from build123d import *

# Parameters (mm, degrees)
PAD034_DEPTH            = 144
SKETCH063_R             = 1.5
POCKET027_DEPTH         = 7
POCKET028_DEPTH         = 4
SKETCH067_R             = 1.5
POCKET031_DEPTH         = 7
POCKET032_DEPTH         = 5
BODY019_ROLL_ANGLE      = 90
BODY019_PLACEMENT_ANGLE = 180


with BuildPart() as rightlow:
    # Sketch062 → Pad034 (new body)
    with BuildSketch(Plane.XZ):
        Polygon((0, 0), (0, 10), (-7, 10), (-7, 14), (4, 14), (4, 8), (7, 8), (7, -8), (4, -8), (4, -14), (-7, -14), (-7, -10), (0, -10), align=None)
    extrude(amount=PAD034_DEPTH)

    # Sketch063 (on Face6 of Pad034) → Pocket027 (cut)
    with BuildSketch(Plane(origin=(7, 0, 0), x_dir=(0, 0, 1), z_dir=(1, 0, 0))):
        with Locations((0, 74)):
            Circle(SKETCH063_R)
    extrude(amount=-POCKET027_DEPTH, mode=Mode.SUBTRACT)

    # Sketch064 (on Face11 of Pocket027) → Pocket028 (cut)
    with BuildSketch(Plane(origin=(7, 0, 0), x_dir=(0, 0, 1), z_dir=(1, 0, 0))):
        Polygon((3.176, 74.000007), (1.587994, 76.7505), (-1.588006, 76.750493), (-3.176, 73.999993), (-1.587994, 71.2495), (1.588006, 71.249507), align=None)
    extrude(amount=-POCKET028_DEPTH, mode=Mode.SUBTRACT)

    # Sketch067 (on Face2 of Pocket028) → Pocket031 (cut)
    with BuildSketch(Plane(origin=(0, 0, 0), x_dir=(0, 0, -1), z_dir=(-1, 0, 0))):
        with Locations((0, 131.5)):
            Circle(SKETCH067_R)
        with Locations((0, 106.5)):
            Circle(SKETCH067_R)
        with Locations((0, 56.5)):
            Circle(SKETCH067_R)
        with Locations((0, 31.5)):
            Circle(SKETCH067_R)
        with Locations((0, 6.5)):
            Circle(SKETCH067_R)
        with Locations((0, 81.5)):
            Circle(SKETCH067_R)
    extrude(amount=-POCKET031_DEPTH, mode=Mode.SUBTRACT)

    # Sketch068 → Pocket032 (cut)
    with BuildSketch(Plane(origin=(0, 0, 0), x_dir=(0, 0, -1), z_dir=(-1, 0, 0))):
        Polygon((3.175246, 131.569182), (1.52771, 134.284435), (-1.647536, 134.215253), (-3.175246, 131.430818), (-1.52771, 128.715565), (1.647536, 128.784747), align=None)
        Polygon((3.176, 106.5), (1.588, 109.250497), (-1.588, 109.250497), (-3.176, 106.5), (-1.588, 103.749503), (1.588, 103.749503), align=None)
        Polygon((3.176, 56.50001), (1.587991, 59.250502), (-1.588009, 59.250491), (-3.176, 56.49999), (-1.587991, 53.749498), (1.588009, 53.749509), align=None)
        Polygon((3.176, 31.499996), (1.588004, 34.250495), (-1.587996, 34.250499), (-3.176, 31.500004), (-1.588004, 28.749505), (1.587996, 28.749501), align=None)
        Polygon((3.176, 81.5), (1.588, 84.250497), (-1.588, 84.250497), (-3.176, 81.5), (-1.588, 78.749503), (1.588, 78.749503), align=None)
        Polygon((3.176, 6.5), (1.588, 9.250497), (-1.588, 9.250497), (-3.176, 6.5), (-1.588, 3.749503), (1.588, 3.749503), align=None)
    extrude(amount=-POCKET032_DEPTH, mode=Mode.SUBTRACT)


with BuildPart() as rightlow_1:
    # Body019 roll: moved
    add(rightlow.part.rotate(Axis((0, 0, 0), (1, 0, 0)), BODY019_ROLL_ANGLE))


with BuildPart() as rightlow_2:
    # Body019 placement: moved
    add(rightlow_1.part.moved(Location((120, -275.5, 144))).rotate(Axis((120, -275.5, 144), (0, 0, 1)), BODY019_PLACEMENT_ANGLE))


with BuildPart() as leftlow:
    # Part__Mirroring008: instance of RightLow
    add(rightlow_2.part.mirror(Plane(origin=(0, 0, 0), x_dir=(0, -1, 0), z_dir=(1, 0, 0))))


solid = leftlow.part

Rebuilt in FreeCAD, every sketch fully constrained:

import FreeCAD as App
import Part
import Sketcher
Q = App.Units.Quantity

doc = App.newDocument("Part")
body = doc.addObject("PartDesign::Body", "Body")

sketch1 = body.newObject("Sketcher::SketchObject", "Sketch")
sketch1.AttachmentSupport = (doc.getObject("XZ_Plane"), [""])
sketch1.MapMode = "FlatFace"
sketch1.addGeometry([
    Part.LineSegment(App.Vector(0, 10, 0), App.Vector(0, -10, 0)),
    Part.LineSegment(App.Vector(0, -10, 0), App.Vector(-7, -10, 0)),
    Part.LineSegment(App.Vector(-7, -10, 0), App.Vector(-7, -14, 0)),
    Part.LineSegment(App.Vector(-7, -14, 0), App.Vector(4, -14, 0)),
    Part.LineSegment(App.Vector(4, -14, 0), App.Vector(4, -8, 0)),
    Part.LineSegment(App.Vector(4, -8, 0), App.Vector(7, -8, 0)),
    Part.LineSegment(App.Vector(7, -8, 0), App.Vector(7, 8, 0)),
    Part.LineSegment(App.Vector(7, 8, 0), App.Vector(4, 8, 0)),
    Part.LineSegment(App.Vector(4, 8, 0), App.Vector(4, 14, 0)),
    Part.LineSegment(App.Vector(4, 14, 0), App.Vector(-7, 14, 0)),
    Part.LineSegment(App.Vector(-7, 14, 0), App.Vector(-7, 10, 0)),
    Part.LineSegment(App.Vector(-7, 10, 0), App.Vector(0, 10, 0)),
], False)
sketch1.addConstraint([
    Sketcher.Constraint("Coincident", 0, 2, 1, 1),
    Sketcher.Constraint("Coincident", 1, 2, 2, 1),
    Sketcher.Constraint("Coincident", 2, 2, 3, 1),
    Sketcher.Constraint("Coincident", 3, 2, 4, 1),
    Sketcher.Constraint("Coincident", 4, 2, 5, 1),
    Sketcher.Constraint("Coincident", 5, 2, 6, 1),
    Sketcher.Constraint("Coincident", 6, 2, 7, 1),
    Sketcher.Constraint("Coincident", 7, 2, 8, 1),
    Sketcher.Constraint("Coincident", 8, 2, 9, 1),
    Sketcher.Constraint("Coincident", 9, 2, 10, 1),
    Sketcher.Constraint("Coincident", 10, 2, 11, 1),
    Sketcher.Constraint("Coincident", 11, 2, 0, 1),
    Sketcher.Constraint("Vertical", 0),
    Sketcher.Constraint("Horizontal", 1),
    Sketcher.Constraint("Vertical", 2),
    Sketcher.Constraint("Horizontal", 3),
    Sketcher.Constraint("Vertical", 4),
    Sketcher.Constraint("Horizontal", 5),
    Sketcher.Constraint("Vertical", 6),
    Sketcher.Constraint("Horizontal", 7),
    Sketcher.Constraint("Vertical", 8),
    Sketcher.Constraint("Horizontal", 9),
    Sketcher.Constraint("Vertical", 10),
    Sketcher.Constraint("Horizontal", 11),
    Sketcher.Constraint("Symmetric", 0, 2, 11, 2, -1, 1),
    Sketcher.Constraint("Symmetric", 4, 2, 7, 2, -1),
    Sketcher.Constraint("Symmetric", 2, 2, 9, 2, -1),
    Sketcher.Constraint("DistanceX", 1, 2, 1, 1, Q("7 mm")),
    Sketcher.Constraint("DistanceX", 3, 1, 3, 2, Q("11 mm")),
    Sketcher.Constraint("DistanceX", 5, 1, 5, 2, Q("3 mm")),
    Sketcher.Constraint("DistanceY", 0, 2, 0, 1, Q("20 mm")),
    Sketcher.Constraint("DistanceY", 2, 2, 2, 1, Q("4 mm")),
    Sketcher.Constraint("DistanceY", 4, 1, 4, 2, Q("6 mm")),
])
pad1 = body.newObject("PartDesign::Pad", "Pad")
pad1.Profile = sketch1
pad1.Length = 144

sketch2 = body.newObject("Sketcher::SketchObject", "Sketch001")
sketch2.AttachmentSupport = (doc.getObject("YZ_Plane"), [""])
sketch2.MapMode = "FlatFace"
sketch2.AttachmentOffset = App.Placement(App.Vector(0, 0, 7), App.Rotation())
sketch2.addGeometry(Part.Circle(App.Vector(-74, 0, 0), App.Vector(0, 0, 1), 1.5), False)
sketch2.addConstraint([
    Sketcher.Constraint("PointOnObject", 0, 3, -1),
    Sketcher.Constraint("Diameter", 0, Q("3 mm")),
    Sketcher.Constraint("DistanceX", 0, 3, -1, 1, Q("74 mm")),
])
pocket1 = body.newObject("PartDesign::Pocket", "Pocket")
pocket1.Profile = sketch2
pocket1.Length = 7

sketch3 = body.newObject("Sketcher::SketchObject", "Sketch002")
sketch3.AttachmentSupport = (doc.getObject("YZ_Plane"), [""])
sketch3.MapMode = "FlatFace"
sketch3.AttachmentOffset = App.Placement(App.Vector(0, 0, 7), App.Rotation())
sketch3.addGeometry([
    Part.LineSegment(App.Vector(-74, 3.2, 0), App.Vector(-76.8, 1.6, 0)),
    Part.LineSegment(App.Vector(-76.8, 1.6, 0), App.Vector(-76.8, -1.6, 0)),
    Part.LineSegment(App.Vector(-76.8, -1.6, 0), App.Vector(-74, -3.2, 0)),
    Part.LineSegment(App.Vector(-74, -3.2, 0), App.Vector(-71.2, -1.6, 0)),
    Part.LineSegment(App.Vector(-71.2, -1.6, 0), App.Vector(-71.2, 1.6, 0)),
    Part.LineSegment(App.Vector(-71.2, 1.6, 0), App.Vector(-74, 3.2, 0)),
], False)
sketch3.addConstraint([
    Sketcher.Constraint("Coincident", 0, 2, 1, 1),
    Sketcher.Constraint("Coincident", 1, 2, 2, 1),
    Sketcher.Constraint("Coincident", 2, 2, 3, 1),
    Sketcher.Constraint("Coincident", 3, 2, 4, 1),
    Sketcher.Constraint("Coincident", 4, 2, 5, 1),
    Sketcher.Constraint("Coincident", 5, 2, 0, 1),
    Sketcher.Constraint("Parallel", 0, 3),
    Sketcher.Constraint("Parallel", 1, 4),
    Sketcher.Constraint("Parallel", 2, 5),
    Sketcher.Constraint("Equal", 0, 1),
    Sketcher.Constraint("Equal", 1, 2),
    Sketcher.Constraint("Equal", 2, 3),
    Sketcher.Constraint("Distance", 0, Q("3.176 mm")),
    Sketcher.Constraint("DistanceY", 2, 2, -1, 1, Q("3.176 mm")),
    Sketcher.Constraint("DistanceY", -1, 1, 5, 2, Q("3.176 mm")),
    Sketcher.Constraint("DistanceX", 0, 2, 3, 2, Q("5.501 mm")),
    Sketcher.Constraint("DistanceX", 0, 2, -1, 1, Q("76.7505 mm")),
    Sketcher.Constraint("DistanceX", 1, 2, 2, 2, Q("2.7505 mm")),
])
pocket2 = body.newObject("PartDesign::Pocket", "Pocket001")
pocket2.Profile = sketch3
pocket2.Length = 4

sketch4 = body.newObject("Sketcher::SketchObject", "Sketch003")
sketch4.AttachmentSupport = (doc.getObject("YZ_Plane"), [""])
sketch4.MapMode = "FlatFace"
sketch4.addGeometry([
    Part.Circle(App.Vector(-131.5, 0, 0), App.Vector(0, 0, 1), 1.5),
    Part.Circle(App.Vector(-106.5, 0, 0), App.Vector(0, 0, 1), 1.5),
    Part.Circle(App.Vector(-56.5, 0, 0), App.Vector(0, 0, 1), 1.5),
    Part.Circle(App.Vector(-31.5, 0, 0), App.Vector(0, 0, 1), 1.5),
    Part.Circle(App.Vector(-6.5, 0, 0), App.Vector(0, 0, 1), 1.5),
    Part.Circle(App.Vector(-81.5, 0, 0), App.Vector(0, 0, 1), 1.5),
], False)
sketch4.addConstraint([
    Sketcher.Constraint("Equal", 0, 1),
    Sketcher.Constraint("Equal", 1, 2),
    Sketcher.Constraint("Equal", 2, 3),
    Sketcher.Constraint("Equal", 3, 4),
    Sketcher.Constraint("Equal", 4, 5),
    Sketcher.Constraint("PointOnObject", 0, 3, -1),
    Sketcher.Constraint("PointOnObject", 1, 3, -1),
    Sketcher.Constraint("PointOnObject", 2, 3, -1),
    Sketcher.Constraint("PointOnObject", 3, 3, -1),
    Sketcher.Constraint("PointOnObject", 4, 3, -1),
    Sketcher.Constraint("PointOnObject", 5, 3, -1),
    Sketcher.Constraint("Diameter", 0, Q("3 mm")),
    Sketcher.Constraint("DistanceX", 0, 3, 1, 3, Q("25 mm")),
    Sketcher.Constraint("DistanceX", 1, 3, 2, 3, Q("50 mm")),
    Sketcher.Constraint("DistanceX", 2, 3, 3, 3, Q("25 mm")),
    Sketcher.Constraint("DistanceX", 3, 3, 4, 3, Q("25 mm")),
    Sketcher.Constraint("DistanceX", 1, 3, 5, 3, Q("25 mm")),
    Sketcher.Constraint("DistanceX", 0, 3, -1, 1, Q("131.5 mm")),
])
pocket3 = body.newObject("PartDesign::Pocket", "Pocket002")
pocket3.Profile = sketch4
pocket3.Length = 7
pocket3.Reversed = True

sketch5 = body.newObject("Sketcher::SketchObject", "Sketch004")
sketch5.AttachmentSupport = (doc.getObject("YZ_Plane"), [""])
sketch5.MapMode = "FlatFace"
sketch5.addGeometry([
    Part.LineSegment(App.Vector(-131.6, -3.2, 0), App.Vector(-134.3, -1.5, 0)),
    Part.LineSegment(App.Vector(-134.3, -1.5, 0), App.Vector(-134.2, 1.6, 0)),
    Part.LineSegment(App.Vector(-134.2, 1.6, 0), App.Vector(-131.4, 3.2, 0)),
    Part.LineSegment(App.Vector(-131.4, 3.2, 0), App.Vector(-128.7, 1.5, 0)),
    Part.LineSegment(App.Vector(-128.7, 1.5, 0), App.Vector(-128.8, -1.6, 0)),
    Part.LineSegment(App.Vector(-128.8, -1.6, 0), App.Vector(-131.6, -3.2, 0)),
    Part.LineSegment(App.Vector(-106.5, -3.2, 0), App.Vector(-109.3, -1.6, 0)),
    Part.LineSegment(App.Vector(-109.3, -1.6, 0), App.Vector(-109.3, 1.6, 0)),
    Part.LineSegment(App.Vector(-109.3, 1.6, 0), App.Vector(-106.5, 3.2, 0)),
    Part.LineSegment(App.Vector(-106.5, 3.2, 0), App.Vector(-103.7, 1.6, 0)),
    Part.LineSegment(App.Vector(-103.7, 1.6, 0), App.Vector(-103.7, -1.6, 0)),
    Part.LineSegment(App.Vector(-103.7, -1.6, 0), App.Vector(-106.5, -3.2, 0)),
    Part.LineSegment(App.Vector(-56.5, -3.2, 0), App.Vector(-59.3, -1.6, 0)),
    Part.LineSegment(App.Vector(-59.3, -1.6, 0), App.Vector(-59.3, 1.6, 0)),
    Part.LineSegment(App.Vector(-59.3, 1.6, 0), App.Vector(-56.5, 3.2, 0)),
    Part.LineSegment(App.Vector(-56.5, 3.2, 0), App.Vector(-53.7, 1.6, 0)),
    Part.LineSegment(App.Vector(-53.7, 1.6, 0), App.Vector(-53.7, -1.6, 0)),
    Part.LineSegment(App.Vector(-53.7, -1.6, 0), App.Vector(-56.5, -3.2, 0)),
    Part.LineSegment(App.Vector(-31.5, -3.2, 0), App.Vector(-34.3, -1.6, 0)),
    Part.LineSegment(App.Vector(-34.3, -1.6, 0), App.Vector(-34.3, 1.6, 0)),
    Part.LineSegment(App.Vector(-34.3, 1.6, 0), App.Vector(-31.5, 3.2, 0)),
    Part.LineSegment(App.Vector(-31.5, 3.2, 0), App.Vector(-28.7, 1.6, 0)),
    Part.LineSegment(App.Vector(-28.7, 1.6, 0), App.Vector(-28.7, -1.6, 0)),
    Part.LineSegment(App.Vector(-28.7, -1.6, 0), App.Vector(-31.5, -3.2, 0)),
    Part.LineSegment(App.Vector(-81.5, -3.2, 0), App.Vector(-84.3, -1.6, 0)),
    Part.LineSegment(App.Vector(-84.3, -1.6, 0), App.Vector(-84.3, 1.6, 0)),
    Part.LineSegment(App.Vector(-84.3, 1.6, 0), App.Vector(-81.5, 3.2, 0)),
    Part.LineSegment(App.Vector(-81.5, 3.2, 0), App.Vector(-78.7, 1.6, 0)),
    Part.LineSegment(App.Vector(-78.7, 1.6, 0), App.Vector(-78.7, -1.6, 0)),
    Part.LineSegment(App.Vector(-78.7, -1.6, 0), App.Vector(-81.5, -3.2, 0)),
    Part.LineSegment(App.Vector(-6.5, -3.2, 0), App.Vector(-9.3, -1.6, 0)),
    Part.LineSegment(App.Vector(-9.3, -1.6, 0), App.Vector(-9.3, 1.6, 0)),
    Part.LineSegment(App.Vector(-9.3, 1.6, 0), App.Vector(-6.5, 3.2, 0)),
    Part.LineSegment(App.Vector(-6.5, 3.2, 0), App.Vector(-3.7, 1.6, 0)),
    Part.LineSegment(App.Vector(-3.7, 1.6, 0), App.Vector(-3.7, -1.6, 0)),
    Part.LineSegment(App.Vector(-3.7, -1.6, 0), App.Vector(-6.5, -3.2, 0)),
], False)
sketch5.addConstraint([
    Sketcher.Constraint("Coincident", 0, 2, 1, 1),
    Sketcher.Constraint("Coincident", 1, 2, 2, 1),
    Sketcher.Constraint("Coincident", 2, 2, 3, 1),
    Sketcher.Constraint("Coincident", 3, 2, 4, 1),
    Sketcher.Constraint("Coincident", 4, 2, 5, 1),
    Sketcher.Constraint("Coincident", 5, 2, 0, 1),
    Sketcher.Constraint("Coincident", 6, 2, 7, 1),
    Sketcher.Constraint("Coincident", 7, 2, 8, 1),
    Sketcher.Constraint("Coincident", 8, 2, 9, 1),
    Sketcher.Constraint("Coincident", 9, 2, 10, 1),
    Sketcher.Constraint("Coincident", 10, 2, 11, 1),
    Sketcher.Constraint("Coincident", 11, 2, 6, 1),
    Sketcher.Constraint("Coincident", 12, 2, 13, 1),
    Sketcher.Constraint("Coincident", 13, 2, 14, 1),
    Sketcher.Constraint("Coincident", 14, 2, 15, 1),
    Sketcher.Constraint("Coincident", 15, 2, 16, 1),
    Sketcher.Constraint("Coincident", 16, 2, 17, 1),
    Sketcher.Constraint("Coincident", 17, 2, 12, 1),
    Sketcher.Constraint("Coincident", 18, 2, 19, 1),
    Sketcher.Constraint("Coincident", 19, 2, 20, 1),
    Sketcher.Constraint("Coincident", 20, 2, 21, 1),
    Sketcher.Constraint("Coincident", 21, 2, 22, 1),
    Sketcher.Constraint("Coincident", 22, 2, 23, 1),
    Sketcher.Constraint("Coincident", 23, 2, 18, 1),
    Sketcher.Constraint("Coincident", 24, 2, 25, 1),
    Sketcher.Constraint("Coincident", 25, 2, 26, 1),
    Sketcher.Constraint("Coincident", 26, 2, 27, 1),
    Sketcher.Constraint("Coincident", 27, 2, 28, 1),
    Sketcher.Constraint("Coincident", 28, 2, 29, 1),
    Sketcher.Constraint("Coincident", 29, 2, 24, 1),
    Sketcher.Constraint("Coincident", 30, 2, 31, 1),
    Sketcher.Constraint("Coincident", 31, 2, 32, 1),
    Sketcher.Constraint("Coincident", 32, 2, 33, 1),
    Sketcher.Constraint("Coincident", 33, 2, 34, 1),
    Sketcher.Constraint("Coincident", 34, 2, 35, 1),
    Sketcher.Constraint("Coincident", 35, 2, 30, 1),
    Sketcher.Constraint("Vertical", 7),
    Sketcher.Constraint("Vertical", 10),
    Sketcher.Constraint("Vertical", 25),
    Sketcher.Constraint("Vertical", 28),
    Sketcher.Constraint("Vertical", 31),
    Sketcher.Constraint("Vertical", 34),
    Sketcher.Constraint("Symmetric", 8, 2, 11, 2, -1),
    Sketcher.Constraint("Symmetric", 18, 2, 19, 2, -1),
    Sketcher.Constraint("Symmetric", 21, 2, 22, 2, -1),
    Sketcher.Constraint("Symmetric", 20, 2, 23, 2, -1),
    Sketcher.Constraint("Symmetric", 26, 2, 29, 2, -1),
    Sketcher.Constraint("Symmetric", 32, 2, 35, 2, -1),
    Sketcher.Constraint("Parallel", 0, 3),
    Sketcher.Constraint("Parallel", 1, 4),
    Sketcher.Constraint("Parallel", 2, 5),
    Sketcher.Constraint("Parallel", 6, 9),
    Sketcher.Constraint("Parallel", 8, 11),
    Sketcher.Constraint("Parallel", 12, 15),
    Sketcher.Constraint("Parallel", 13, 16),
    Sketcher.Constraint("Parallel", 14, 17),
    Sketcher.Constraint("Parallel", 9, 18),
    Sketcher.Constraint("Parallel", 11, 20),
    Sketcher.Constraint("Parallel", 18, 21),
    Sketcher.Constraint("Parallel", 21, 24),
    Sketcher.Constraint("Parallel", 23, 26),
    Sketcher.Constraint("Parallel", 24, 27),
    Sketcher.Constraint("Parallel", 26, 29),
    Sketcher.Constraint("Parallel", 27, 30),
    Sketcher.Constraint("Parallel", 29, 32),
    Sketcher.Constraint("Parallel", 30, 33),
    Sketcher.Constraint("Parallel", 32, 35),
    Sketcher.Constraint("Horizontal", 7, 2, 9, 2),
    Sketcher.Constraint("Horizontal", 8, 2, 14, 2),
    Sketcher.Constraint("Horizontal", 11, 2, 17, 2),
    Sketcher.Constraint("Horizontal", 14, 2, 20, 2),
    Sketcher.Constraint("Horizontal", 10, 2, 24, 2),
    Sketcher.Constraint("Horizontal", 20, 2, 26, 2),
    Sketcher.Constraint("Horizontal", 25, 2, 27, 2),
    Sketcher.Constraint("Horizontal", 28, 2, 30, 2),
    Sketcher.Constraint("Horizontal", 26, 2, 32, 2),
    Sketcher.Constraint("Horizontal", 31, 2, 33, 2),
    Sketcher.Constraint("Equal", 0, 1),
    Sketcher.Constraint("Equal", 1, 2),
    Sketcher.Constraint("Equal", 2, 3),
    Sketcher.Constraint("Equal", 5, 6),
    Sketcher.Constraint("Equal", 11, 12),
    Sketcher.Constraint("Equal", 12, 13),
    Sketcher.Constraint("Equal", 13, 14),
    Sketcher.Constraint("Equal", 14, 15),
    Sketcher.Constraint("Equal", 17, 18),
    Sketcher.Constraint("Equal", 18, 19),
    Sketcher.Constraint("Equal", 20, 21),
    Sketcher.Constraint("Angle", 6, Q("150.000003 deg")),
    Sketcher.Constraint("DistanceX", 18, 2, 30, 2, Q("24.999998 mm")),
    Sketcher.Constraint("DistanceX", 8, 2, -1, 1, Q("106.5 mm")),
    Sketcher.Constraint("DistanceX", 26, 2, -1, 1, Q("81.5 mm")),
    Sketcher.Constraint("DistanceX", 32, 2, -1, 1, Q("6.5 mm")),
    Sketcher.Constraint("DistanceY", 7, 1, 7, 2, Q("3.176 mm")),
    Sketcher.Constraint("DistanceX", 10, 2, 12, 2, Q("44.499001 mm")),
    Sketcher.Constraint("DistanceX", 15, 2, 19, 2, Q("19.498999 mm")),
    Sketcher.Constraint("DistanceX", 13, 2, 14, 2, Q("2.750501 mm")),
    Sketcher.Constraint("DistanceY", 0, 2, -1, 1, Q("1.52771 mm")),
    Sketcher.Constraint("DistanceY", -1, 1, 3, 2, Q("1.52771 mm")),
    Sketcher.Constraint("DistanceY", 1, 2, 2, 2, Q("1.52771 mm")),
    Sketcher.Constraint("DistanceX", 0, 2, 3, 2, Q("5.56887 mm")),
    Sketcher.Constraint("DistanceX", 4, 2, 6, 2, Q("19.53425 mm")),
])
pocket4 = body.newObject("PartDesign::Pocket", "Pocket003")
pocket4.Profile = sketch5
pocket4.Length = 5
pocket4.Reversed = True
body2 = doc.addObject("PartDesign::Body", "Body001")
doc.recompute()

body.Placement = App.Placement(App.Vector(0, 0, 0), App.Rotation(App.Vector(1, 0, 0), 90))
boolean = body2.newObject("PartDesign::Boolean", "Boolean")
boolean.Type = "Fuse"
boolean.addObjects([body])
body3 = doc.addObject("PartDesign::Body", "Body002")
doc.recompute()

body2.Placement = App.Placement(App.Vector(120, -275.5, 144), App.Rotation(App.Vector(0, 0, 1), 180))
boolean2 = body3.newObject("PartDesign::Boolean", "Boolean001")
boolean2.Type = "Fuse"
boolean2.addObjects([body2])
body4 = doc.addObject("PartDesign::Body", "Body003")
doc.recompute()

mirroring = doc.addObject("Part::Mirroring", "Mirroring")
mirroring.Source = body3
mirroring.Base = App.Vector(0, 0, 0)
mirroring.Normal = App.Vector(1, 0, 0)
body4.BaseFeature = mirroring
doc.recompute()
body3.Visibility = False
mirroring.Visibility = False

doc.recompute()
